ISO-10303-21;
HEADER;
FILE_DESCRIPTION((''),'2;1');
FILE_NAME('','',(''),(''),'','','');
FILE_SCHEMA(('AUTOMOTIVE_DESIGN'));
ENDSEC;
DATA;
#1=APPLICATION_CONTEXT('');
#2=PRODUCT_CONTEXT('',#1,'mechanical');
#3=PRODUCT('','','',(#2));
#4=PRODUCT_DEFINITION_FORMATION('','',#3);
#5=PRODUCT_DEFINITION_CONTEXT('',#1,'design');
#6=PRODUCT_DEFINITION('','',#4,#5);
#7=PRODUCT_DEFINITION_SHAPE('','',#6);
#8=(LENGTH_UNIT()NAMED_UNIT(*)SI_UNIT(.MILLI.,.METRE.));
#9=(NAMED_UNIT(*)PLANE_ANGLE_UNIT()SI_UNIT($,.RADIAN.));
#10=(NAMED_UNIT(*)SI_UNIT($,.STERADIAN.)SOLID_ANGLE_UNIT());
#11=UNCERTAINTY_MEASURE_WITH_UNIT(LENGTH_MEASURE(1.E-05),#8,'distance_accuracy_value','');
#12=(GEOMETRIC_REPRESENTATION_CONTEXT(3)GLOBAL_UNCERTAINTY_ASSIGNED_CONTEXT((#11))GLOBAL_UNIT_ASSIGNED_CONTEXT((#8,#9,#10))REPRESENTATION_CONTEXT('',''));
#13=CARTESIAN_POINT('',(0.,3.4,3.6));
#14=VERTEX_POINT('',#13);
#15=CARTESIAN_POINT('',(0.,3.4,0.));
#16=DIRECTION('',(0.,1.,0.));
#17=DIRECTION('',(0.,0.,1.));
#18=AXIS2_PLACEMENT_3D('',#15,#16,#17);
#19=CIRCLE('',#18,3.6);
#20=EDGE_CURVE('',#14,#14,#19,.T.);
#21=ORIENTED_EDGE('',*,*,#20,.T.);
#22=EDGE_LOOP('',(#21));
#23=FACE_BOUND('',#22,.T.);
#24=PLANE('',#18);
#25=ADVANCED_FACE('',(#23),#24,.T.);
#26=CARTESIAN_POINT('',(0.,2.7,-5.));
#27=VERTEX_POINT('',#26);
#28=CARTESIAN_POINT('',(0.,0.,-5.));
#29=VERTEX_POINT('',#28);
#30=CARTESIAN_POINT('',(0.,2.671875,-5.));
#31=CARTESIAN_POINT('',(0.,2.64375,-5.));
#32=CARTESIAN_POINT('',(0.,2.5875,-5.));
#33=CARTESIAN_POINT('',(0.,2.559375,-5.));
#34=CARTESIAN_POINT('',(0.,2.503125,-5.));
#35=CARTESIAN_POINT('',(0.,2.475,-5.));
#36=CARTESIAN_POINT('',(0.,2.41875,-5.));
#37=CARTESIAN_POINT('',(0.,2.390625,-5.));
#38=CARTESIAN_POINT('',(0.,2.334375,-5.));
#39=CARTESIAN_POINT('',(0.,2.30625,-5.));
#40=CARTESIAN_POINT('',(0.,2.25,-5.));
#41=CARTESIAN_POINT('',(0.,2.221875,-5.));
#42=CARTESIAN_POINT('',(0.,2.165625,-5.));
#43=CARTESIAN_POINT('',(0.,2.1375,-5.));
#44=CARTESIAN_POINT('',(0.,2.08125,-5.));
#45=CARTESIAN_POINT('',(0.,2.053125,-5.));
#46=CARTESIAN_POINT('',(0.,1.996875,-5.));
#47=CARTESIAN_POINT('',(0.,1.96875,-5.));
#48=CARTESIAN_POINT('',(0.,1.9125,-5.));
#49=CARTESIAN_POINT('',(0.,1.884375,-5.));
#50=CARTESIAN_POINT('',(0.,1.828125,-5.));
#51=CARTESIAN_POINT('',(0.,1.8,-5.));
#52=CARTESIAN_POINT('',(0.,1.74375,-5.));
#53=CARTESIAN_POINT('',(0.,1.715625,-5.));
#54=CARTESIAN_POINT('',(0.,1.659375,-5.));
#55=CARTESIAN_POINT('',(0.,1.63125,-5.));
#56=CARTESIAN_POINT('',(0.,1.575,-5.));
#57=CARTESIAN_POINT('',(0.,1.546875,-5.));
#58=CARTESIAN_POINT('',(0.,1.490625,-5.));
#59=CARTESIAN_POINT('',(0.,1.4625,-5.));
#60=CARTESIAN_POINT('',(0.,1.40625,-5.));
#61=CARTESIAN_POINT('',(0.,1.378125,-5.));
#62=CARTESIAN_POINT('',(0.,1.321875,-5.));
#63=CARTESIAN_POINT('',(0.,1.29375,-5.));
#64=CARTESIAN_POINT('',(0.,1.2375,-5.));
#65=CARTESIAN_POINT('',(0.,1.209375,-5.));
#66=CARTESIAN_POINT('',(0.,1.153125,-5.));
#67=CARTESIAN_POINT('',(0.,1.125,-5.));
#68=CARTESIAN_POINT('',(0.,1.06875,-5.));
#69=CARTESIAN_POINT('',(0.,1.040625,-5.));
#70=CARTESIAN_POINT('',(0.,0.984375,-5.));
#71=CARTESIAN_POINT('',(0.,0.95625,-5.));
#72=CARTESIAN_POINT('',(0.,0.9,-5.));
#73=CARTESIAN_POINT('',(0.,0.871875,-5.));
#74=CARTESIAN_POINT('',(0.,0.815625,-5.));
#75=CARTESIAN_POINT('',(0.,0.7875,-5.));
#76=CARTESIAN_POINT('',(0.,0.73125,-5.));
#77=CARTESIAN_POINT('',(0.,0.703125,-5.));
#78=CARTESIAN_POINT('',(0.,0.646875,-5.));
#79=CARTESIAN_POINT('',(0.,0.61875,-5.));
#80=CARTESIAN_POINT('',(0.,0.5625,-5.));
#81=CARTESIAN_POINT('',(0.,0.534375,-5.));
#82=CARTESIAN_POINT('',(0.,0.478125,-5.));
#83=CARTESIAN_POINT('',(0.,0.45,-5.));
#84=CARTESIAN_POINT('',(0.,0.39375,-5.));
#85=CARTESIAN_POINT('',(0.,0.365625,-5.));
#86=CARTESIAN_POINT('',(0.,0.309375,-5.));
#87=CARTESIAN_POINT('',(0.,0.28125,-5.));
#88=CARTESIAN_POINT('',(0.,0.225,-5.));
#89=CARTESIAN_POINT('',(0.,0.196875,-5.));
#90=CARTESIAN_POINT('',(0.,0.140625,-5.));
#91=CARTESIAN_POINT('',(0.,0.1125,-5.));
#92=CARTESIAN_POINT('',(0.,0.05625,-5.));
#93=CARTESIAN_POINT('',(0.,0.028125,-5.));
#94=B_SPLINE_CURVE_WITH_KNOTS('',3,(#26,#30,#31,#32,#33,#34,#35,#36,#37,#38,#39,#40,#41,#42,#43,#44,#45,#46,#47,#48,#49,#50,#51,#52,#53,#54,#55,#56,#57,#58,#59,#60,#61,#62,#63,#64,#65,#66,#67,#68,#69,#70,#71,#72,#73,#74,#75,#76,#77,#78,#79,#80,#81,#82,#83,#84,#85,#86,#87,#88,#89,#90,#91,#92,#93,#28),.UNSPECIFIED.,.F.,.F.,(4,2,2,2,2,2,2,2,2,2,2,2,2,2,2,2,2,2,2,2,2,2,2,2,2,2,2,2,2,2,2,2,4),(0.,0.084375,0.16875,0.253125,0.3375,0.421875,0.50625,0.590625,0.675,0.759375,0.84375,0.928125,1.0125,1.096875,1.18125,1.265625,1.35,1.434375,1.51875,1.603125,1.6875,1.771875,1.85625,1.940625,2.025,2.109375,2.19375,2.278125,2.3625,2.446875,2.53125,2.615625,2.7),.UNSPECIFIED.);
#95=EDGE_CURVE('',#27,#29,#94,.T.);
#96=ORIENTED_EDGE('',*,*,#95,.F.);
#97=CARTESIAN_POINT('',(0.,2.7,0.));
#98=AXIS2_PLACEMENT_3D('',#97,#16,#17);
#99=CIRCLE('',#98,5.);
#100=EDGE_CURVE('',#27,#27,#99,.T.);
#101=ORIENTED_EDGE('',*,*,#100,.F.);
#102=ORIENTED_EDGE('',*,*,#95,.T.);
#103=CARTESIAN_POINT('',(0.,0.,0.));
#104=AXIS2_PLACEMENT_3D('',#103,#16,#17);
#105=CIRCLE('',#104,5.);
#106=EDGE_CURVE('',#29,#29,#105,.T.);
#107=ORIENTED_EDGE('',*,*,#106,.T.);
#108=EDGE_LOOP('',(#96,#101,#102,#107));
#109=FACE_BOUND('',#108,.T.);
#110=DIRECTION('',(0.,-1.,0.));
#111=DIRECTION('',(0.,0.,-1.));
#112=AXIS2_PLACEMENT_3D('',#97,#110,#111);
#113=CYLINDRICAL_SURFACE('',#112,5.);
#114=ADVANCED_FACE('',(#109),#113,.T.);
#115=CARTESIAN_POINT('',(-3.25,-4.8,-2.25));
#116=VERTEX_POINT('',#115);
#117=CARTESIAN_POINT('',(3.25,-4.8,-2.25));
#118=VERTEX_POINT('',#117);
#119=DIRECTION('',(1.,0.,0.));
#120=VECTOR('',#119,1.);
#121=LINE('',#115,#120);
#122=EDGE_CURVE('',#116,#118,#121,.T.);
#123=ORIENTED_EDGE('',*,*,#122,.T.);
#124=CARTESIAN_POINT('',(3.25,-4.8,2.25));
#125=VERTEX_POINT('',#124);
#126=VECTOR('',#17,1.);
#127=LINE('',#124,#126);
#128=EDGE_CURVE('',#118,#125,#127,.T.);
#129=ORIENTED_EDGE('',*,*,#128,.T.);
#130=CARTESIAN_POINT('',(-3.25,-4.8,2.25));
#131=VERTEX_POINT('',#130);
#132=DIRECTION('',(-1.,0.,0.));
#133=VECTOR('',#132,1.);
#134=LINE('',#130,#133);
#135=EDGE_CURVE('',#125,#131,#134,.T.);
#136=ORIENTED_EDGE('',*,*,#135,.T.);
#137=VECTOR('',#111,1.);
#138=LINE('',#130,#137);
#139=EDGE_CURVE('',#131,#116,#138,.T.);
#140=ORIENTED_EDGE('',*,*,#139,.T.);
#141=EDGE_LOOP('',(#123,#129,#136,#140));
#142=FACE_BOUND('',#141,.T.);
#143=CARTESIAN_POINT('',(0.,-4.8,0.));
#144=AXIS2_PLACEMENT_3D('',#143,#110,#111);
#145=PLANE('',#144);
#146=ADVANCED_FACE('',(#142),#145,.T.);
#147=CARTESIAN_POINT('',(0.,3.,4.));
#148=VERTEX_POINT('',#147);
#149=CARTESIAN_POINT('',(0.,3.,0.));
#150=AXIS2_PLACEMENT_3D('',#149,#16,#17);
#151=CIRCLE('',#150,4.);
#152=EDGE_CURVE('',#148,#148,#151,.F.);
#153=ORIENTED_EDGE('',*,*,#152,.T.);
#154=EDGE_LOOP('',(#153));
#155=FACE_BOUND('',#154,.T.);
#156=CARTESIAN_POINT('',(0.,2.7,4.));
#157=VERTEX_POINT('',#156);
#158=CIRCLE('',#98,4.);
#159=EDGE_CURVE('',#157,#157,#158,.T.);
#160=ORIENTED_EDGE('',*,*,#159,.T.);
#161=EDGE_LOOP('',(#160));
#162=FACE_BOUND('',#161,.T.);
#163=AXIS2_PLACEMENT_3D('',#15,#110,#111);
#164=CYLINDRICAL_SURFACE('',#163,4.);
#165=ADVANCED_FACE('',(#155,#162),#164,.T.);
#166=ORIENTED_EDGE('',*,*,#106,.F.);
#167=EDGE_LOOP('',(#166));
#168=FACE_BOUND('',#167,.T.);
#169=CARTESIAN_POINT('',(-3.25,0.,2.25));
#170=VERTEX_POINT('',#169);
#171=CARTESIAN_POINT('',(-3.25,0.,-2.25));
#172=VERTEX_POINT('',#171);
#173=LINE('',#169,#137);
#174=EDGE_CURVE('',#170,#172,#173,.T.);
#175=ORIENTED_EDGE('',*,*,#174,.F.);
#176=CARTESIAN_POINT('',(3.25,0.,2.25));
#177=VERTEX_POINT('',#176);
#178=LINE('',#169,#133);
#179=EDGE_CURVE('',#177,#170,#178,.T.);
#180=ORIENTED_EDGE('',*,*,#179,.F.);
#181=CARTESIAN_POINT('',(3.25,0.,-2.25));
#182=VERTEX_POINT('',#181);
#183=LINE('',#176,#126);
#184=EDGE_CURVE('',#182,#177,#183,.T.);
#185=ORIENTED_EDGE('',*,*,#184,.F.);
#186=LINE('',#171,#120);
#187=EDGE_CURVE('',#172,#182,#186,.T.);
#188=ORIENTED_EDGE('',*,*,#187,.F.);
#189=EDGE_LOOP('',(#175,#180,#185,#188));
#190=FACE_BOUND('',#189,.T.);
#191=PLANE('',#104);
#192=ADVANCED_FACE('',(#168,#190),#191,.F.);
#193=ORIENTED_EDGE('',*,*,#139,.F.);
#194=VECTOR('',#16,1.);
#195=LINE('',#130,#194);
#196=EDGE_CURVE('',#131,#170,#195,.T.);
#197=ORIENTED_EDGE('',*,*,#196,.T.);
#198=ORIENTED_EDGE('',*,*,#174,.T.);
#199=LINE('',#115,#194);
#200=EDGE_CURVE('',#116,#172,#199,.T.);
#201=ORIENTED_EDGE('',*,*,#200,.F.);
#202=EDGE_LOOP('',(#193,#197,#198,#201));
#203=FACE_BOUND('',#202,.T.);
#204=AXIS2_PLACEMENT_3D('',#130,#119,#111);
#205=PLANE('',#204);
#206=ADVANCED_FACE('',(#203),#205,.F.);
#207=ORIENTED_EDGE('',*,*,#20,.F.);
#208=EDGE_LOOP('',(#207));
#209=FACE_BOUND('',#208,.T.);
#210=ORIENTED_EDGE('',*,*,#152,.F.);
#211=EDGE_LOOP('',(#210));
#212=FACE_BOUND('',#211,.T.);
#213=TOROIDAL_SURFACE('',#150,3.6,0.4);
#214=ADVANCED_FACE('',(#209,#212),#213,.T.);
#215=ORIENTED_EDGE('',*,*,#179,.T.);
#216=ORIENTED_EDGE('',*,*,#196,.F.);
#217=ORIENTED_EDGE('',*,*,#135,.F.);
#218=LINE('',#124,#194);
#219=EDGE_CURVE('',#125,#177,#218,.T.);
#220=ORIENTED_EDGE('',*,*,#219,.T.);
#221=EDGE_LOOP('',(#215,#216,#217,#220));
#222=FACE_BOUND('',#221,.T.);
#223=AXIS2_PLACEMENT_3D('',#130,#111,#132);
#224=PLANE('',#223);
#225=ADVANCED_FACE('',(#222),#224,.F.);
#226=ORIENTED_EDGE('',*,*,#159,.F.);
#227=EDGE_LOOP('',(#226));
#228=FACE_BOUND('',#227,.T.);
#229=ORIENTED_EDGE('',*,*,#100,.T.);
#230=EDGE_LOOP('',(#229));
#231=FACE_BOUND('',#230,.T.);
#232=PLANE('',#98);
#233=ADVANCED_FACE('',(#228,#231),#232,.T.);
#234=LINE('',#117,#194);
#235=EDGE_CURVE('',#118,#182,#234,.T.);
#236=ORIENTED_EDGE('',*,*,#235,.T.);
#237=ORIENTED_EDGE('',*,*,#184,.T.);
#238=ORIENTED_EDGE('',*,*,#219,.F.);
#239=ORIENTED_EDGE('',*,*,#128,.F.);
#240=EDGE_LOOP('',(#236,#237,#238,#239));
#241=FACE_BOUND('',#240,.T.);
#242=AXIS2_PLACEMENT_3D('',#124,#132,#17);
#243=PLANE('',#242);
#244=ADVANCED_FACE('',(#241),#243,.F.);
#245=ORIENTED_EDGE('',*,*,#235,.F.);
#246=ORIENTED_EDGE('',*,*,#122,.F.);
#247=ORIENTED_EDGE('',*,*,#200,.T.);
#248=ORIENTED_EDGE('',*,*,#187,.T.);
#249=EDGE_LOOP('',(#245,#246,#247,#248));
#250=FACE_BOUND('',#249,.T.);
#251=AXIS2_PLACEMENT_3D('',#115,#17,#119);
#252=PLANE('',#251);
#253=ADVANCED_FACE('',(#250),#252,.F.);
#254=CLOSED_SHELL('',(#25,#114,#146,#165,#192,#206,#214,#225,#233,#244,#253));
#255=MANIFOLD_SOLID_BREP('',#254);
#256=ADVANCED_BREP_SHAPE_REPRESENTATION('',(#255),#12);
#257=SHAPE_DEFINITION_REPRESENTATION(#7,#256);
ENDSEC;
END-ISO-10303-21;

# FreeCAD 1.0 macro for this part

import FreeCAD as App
import Part
import Sketcher

V = App.Vector


def edges_at(feature, points):
    """Names of the edges that pass closest to the given points."""
    edges = feature.Shape.Edges
    near = lambda p: min(range(len(edges)), key=lambda i: edges[i].distToShape(Part.Vertex(*p))[0])
    return sorted({f"Edge{near(p) + 1}" for p in points})


def add_polygon(sketch, points):
    """Adds a closed chain of lines whose ends are joined by coincident constraints."""
    first, n = sketch.GeometryCount, len(points)
    for a, b in zip(points, points[1:] + points[:1]):
        sketch.addGeometry(Part.LineSegment(App.Vector(*a, 0), App.Vector(*b, 0)), False)
    for i in range(n):
        sketch.addConstraint(Sketcher.Constraint("Coincident", first + i, 2, first + (i + 1) % n, 1))

doc = App.newDocument("Part")
params = doc.addObject("Spreadsheet::Sheet", "Params")
for row, (alias, value) in enumerate([
    ("sketch1_diameter", "10 mm"),
    ("pad1_length", "2.7 mm"),
    ("sketch2_diameter", "8 mm"),
    ("pad2_length", "0.7 mm"),
    ("fillet_radius", "0.4 mm"),
    ("sketch3_width", "6.5 mm"),
    ("sketch3_height", "4.5 mm"),
    ("pad3_length", "4.8 mm"),
], start=1):
    params.set(f"A{row}", alias)
    params.set(f"B{row}", "=" + value)
    params.setAlias(f"B{row}", alias)

body = doc.addObject("PartDesign::Body", "Body")

# Sketch on XZ plane
sketch1 = body.newObject("Sketcher::SketchObject", "Sketch")
sketch1.AttachmentSupport = (doc.getObject("XZ_Plane"), [""])
sketch1.MapMode = "FlatFace"
sketch1.addGeometry(Part.Circle(V(0, 0, 0), V(0, 0, 1), 5), False)
sketch1.addConstraint([
    Sketcher.Constraint("Coincident", 0, 3, -1, 1),
    Sketcher.Constraint("Diameter", 0, 10.0),
])
sketch1.setExpression("Constraints[1]", "Params.sketch1_diameter")
pad1 = body.newObject("PartDesign::Pad", "Pad")
pad1.Profile = sketch1
pad1.setExpression("Length", "Params.pad1_length")
pad1.Reversed = True

# Sketch on XZ plane
sketch2 = body.newObject("Sketcher::SketchObject", "Sketch001")
sketch2.AttachmentSupport = (doc.getObject("XZ_Plane"), [""])
sketch2.MapMode = "FlatFace"
sketch2.AttachmentOffset = App.Placement(V(0, 0, -2.7), App.Rotation())
sketch2.addGeometry(Part.Circle(V(0, 0, 0), V(0, 0, 1), 4), False)
sketch2.addConstraint([
    Sketcher.Constraint("Coincident", 0, 3, -1, 1),
    Sketcher.Constraint("Diameter", 0, 8.0),
])
sketch2.setExpression("Constraints[1]", "Params.sketch2_diameter")
pad2 = body.newObject("PartDesign::Pad", "Pad001")
pad2.Profile = sketch2
pad2.setExpression("Length", "Params.pad2_length")
pad2.Reversed = True
doc.recompute()

fillet = body.newObject("PartDesign::Fillet", "Fillet")
fillet.Base = (pad2, edges_at(pad2, [(0, 3.4, -4)]))
fillet.setExpression("Radius", "Params.fillet_radius")

# Sketch on XZ plane
sketch3 = body.newObject("Sketcher::SketchObject", "Sketch002")
sketch3.AttachmentSupport = (doc.getObject("XZ_Plane"), [""])
sketch3.MapMode = "FlatFace"
add_polygon(sketch3, [(-3.2, 2.2), (-3.2, -2.2), (3.2, -2.2), (3.2, 2.2)])  # lines 0-3
sketch3.addConstraint([
    Sketcher.Constraint("Vertical", 0),
    Sketcher.Constraint("Horizontal", 1),
    Sketcher.Constraint("Vertical", 2),
    Sketcher.Constraint("Horizontal", 3),
    Sketcher.Constraint("Symmetric", 0, 2, 2, 2, -1, 1),
    Sketcher.Constraint("DistanceX", 1, 1, 1, 2, 6.5),
    Sketcher.Constraint("DistanceY", 0, 2, 0, 1, 4.5),
])
sketch3.setExpression("Constraints[9]", "Params.sketch3_width")
sketch3.setExpression("Constraints[10]", "Params.sketch3_height")
pad3 = body.newObject("PartDesign::Pad", "Pad002")
pad3.Profile = sketch3
pad3.setExpression("Length", "Params.pad3_length")

doc.recompute()
